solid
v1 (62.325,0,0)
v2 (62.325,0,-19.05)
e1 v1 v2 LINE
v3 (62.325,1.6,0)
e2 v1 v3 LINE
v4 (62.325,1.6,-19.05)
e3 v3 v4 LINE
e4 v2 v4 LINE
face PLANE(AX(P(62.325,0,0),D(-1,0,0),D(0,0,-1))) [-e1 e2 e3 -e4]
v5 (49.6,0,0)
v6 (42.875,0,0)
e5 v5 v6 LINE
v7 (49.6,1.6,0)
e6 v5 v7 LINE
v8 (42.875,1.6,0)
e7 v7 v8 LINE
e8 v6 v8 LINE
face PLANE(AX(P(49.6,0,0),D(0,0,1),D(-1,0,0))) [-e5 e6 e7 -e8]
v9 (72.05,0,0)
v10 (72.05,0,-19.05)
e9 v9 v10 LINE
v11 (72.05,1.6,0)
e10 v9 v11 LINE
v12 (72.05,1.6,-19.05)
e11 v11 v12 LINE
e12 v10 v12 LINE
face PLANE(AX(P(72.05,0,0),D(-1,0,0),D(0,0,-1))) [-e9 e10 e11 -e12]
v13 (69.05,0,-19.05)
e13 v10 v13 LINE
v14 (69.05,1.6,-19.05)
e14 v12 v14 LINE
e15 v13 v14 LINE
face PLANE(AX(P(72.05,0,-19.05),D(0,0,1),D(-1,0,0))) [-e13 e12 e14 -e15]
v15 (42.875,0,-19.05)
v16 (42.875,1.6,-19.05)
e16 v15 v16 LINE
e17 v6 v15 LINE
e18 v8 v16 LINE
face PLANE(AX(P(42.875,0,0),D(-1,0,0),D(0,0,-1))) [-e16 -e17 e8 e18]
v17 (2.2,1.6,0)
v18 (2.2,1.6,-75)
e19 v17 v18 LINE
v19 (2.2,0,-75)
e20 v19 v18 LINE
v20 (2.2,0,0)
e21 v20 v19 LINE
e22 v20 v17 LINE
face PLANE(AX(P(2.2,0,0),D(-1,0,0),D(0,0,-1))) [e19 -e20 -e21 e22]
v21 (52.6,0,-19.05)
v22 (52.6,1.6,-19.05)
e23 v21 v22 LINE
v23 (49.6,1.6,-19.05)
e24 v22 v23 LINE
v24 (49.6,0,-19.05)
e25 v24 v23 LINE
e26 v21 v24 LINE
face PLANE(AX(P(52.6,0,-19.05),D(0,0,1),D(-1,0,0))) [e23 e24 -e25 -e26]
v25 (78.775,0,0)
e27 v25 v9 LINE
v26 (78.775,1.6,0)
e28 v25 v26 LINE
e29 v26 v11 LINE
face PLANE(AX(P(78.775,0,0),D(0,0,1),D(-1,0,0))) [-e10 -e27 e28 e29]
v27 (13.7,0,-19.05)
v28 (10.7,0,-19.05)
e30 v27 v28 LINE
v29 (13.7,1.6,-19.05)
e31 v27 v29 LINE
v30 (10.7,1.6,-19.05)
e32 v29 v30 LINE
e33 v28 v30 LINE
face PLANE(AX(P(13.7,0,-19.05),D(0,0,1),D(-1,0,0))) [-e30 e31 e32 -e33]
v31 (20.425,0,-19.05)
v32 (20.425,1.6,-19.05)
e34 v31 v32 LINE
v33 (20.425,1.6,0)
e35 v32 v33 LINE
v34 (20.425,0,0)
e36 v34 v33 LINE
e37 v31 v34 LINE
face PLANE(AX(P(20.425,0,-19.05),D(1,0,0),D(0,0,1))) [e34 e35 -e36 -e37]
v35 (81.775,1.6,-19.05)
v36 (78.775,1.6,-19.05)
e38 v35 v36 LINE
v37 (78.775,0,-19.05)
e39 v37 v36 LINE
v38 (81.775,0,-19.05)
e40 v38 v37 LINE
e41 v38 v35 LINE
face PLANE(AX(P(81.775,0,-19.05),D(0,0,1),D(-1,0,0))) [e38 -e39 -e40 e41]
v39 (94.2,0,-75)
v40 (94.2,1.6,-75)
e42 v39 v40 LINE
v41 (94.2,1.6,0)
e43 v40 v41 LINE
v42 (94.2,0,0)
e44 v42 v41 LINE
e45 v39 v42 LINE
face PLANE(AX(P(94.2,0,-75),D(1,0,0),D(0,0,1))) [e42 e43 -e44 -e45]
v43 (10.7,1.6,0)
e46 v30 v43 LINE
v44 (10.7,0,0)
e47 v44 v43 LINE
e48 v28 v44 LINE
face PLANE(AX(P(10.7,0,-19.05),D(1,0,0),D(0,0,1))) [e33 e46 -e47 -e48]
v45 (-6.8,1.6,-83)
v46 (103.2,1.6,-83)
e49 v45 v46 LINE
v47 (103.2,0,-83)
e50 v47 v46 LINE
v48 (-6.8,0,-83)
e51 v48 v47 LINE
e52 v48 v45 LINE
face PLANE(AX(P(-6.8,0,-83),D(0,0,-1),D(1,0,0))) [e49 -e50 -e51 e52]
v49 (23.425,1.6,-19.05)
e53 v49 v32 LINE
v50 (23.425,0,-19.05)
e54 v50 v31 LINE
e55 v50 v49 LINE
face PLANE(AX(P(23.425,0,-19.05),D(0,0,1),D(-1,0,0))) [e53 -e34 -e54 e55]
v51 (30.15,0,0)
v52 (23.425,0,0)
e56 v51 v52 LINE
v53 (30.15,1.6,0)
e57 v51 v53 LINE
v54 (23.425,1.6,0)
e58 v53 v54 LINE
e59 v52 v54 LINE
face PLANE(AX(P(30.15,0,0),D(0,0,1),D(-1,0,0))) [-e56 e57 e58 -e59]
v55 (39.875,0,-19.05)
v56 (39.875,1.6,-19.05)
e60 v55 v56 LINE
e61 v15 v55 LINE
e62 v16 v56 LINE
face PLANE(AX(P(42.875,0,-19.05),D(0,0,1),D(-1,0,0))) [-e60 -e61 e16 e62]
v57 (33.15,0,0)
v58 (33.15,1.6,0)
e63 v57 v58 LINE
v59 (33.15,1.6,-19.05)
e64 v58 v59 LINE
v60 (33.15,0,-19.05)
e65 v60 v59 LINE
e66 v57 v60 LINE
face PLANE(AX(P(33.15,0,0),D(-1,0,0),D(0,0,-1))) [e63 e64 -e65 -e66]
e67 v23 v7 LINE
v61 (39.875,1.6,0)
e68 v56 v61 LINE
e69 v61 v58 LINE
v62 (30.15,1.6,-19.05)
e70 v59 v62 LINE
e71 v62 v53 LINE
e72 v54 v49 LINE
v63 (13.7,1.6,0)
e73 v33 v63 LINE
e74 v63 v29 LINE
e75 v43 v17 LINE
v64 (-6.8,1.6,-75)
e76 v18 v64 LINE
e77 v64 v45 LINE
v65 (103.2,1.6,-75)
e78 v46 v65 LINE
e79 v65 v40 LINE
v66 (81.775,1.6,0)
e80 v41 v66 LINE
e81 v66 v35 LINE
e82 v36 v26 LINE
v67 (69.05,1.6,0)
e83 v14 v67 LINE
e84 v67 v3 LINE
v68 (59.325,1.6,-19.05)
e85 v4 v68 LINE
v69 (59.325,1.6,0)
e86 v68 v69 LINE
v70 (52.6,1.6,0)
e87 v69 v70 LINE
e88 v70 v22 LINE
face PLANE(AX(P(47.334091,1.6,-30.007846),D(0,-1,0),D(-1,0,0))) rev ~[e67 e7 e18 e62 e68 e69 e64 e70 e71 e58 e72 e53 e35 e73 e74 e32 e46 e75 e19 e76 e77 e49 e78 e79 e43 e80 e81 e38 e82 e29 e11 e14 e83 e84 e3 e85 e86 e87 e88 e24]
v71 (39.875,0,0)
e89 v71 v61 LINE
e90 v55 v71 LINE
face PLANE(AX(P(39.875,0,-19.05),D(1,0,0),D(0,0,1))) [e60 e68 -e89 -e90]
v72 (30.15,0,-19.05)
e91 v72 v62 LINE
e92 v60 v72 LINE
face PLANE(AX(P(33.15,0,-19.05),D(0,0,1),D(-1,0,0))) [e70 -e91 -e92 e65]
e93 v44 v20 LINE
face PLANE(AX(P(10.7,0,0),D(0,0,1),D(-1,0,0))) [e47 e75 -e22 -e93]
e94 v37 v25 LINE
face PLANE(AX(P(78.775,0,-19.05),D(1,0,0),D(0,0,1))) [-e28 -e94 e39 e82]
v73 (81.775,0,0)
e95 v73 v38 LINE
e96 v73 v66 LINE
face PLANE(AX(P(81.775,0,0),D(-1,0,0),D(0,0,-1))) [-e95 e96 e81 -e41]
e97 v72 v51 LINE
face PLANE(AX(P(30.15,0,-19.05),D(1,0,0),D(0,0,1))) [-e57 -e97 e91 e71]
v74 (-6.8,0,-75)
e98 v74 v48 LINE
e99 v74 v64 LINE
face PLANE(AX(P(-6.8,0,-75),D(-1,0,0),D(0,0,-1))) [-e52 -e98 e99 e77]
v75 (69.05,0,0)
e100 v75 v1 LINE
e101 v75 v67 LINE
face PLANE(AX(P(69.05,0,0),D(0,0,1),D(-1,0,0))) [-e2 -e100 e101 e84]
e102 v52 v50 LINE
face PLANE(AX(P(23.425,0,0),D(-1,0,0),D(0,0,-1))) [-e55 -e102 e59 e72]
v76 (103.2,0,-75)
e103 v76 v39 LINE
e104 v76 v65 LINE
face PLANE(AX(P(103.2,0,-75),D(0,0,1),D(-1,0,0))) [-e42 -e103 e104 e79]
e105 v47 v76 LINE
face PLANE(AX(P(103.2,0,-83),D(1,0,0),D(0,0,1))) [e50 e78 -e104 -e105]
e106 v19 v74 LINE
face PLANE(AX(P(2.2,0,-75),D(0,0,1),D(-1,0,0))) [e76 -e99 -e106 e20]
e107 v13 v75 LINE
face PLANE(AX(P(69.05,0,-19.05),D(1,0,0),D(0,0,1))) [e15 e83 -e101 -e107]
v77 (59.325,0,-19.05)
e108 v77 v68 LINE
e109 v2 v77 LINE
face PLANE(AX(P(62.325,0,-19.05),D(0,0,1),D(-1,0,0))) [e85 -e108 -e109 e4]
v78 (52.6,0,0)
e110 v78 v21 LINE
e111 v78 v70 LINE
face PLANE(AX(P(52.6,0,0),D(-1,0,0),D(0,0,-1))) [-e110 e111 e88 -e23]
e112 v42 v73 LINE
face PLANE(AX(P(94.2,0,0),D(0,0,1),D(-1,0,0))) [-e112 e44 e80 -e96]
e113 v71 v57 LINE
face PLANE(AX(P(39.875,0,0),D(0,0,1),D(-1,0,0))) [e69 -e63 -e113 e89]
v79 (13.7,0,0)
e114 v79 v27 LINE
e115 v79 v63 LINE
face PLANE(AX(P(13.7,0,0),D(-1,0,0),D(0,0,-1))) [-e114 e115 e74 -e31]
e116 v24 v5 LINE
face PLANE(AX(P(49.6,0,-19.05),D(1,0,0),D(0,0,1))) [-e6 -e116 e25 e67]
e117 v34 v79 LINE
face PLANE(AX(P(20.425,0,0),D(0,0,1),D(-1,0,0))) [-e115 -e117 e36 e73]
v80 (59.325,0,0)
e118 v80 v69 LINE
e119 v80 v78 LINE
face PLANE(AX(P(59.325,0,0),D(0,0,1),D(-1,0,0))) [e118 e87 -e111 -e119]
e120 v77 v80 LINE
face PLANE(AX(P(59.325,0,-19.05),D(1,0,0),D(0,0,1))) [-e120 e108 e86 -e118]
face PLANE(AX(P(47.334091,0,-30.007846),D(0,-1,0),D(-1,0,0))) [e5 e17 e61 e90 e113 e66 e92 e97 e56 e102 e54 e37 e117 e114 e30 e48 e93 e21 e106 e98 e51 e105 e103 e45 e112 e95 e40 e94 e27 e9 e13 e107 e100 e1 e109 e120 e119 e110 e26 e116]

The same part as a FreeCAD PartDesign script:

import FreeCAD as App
import Part
import Sketcher

V = App.Vector
Q = App.Units.Quantity

doc = App.newDocument("Part")
body = doc.addObject("PartDesign::Body", "Body")

sketch1 = body.newObject("Sketcher::SketchObject", "Sketch")
sketch1.AttachmentSupport = (doc.getObject("XZ_Plane"), [""])
sketch1.MapMode = "FlatFace"
sketch1.addGeometry(Part.LineSegment(V(-6.8, -75, 0), V(2.2, -75, 0)), False)
sketch1.addGeometry(Part.LineSegment(V(2.2, -75, 0), V(2.2, 0, 0)), False)
sketch1.addGeometry(Part.LineSegment(V(2.2, 0, 0), V(10.7, 0, 0)), False)
sketch1.addGeometry(Part.LineSegment(V(10.7, 0, 0), V(10.7, -19.1, 0)), False)
sketch1.addGeometry(Part.LineSegment(V(10.7, -19.1, 0), V(13.7, -19.1, 0)), False)
sketch1.addGeometry(Part.LineSegment(V(13.7, -19.1, 0), V(13.7, 0, 0)), False)
sketch1.addGeometry(Part.LineSegment(V(13.7, 0, 0), V(20.4, 0, 0)), False)
sketch1.addGeometry(Part.LineSegment(V(20.4, 0, 0), V(20.4, -19.1, 0)), False)
sketch1.addGeometry(Part.LineSegment(V(20.4, -19.1, 0), V(23.4, -19.1, 0)), False)
sketch1.addGeometry(Part.LineSegment(V(23.4, -19.1, 0), V(23.4, 0, 0)), False)
sketch1.addGeometry(Part.LineSegment(V(23.4, 0, 0), V(30.1, 0, 0)), False)
sketch1.addGeometry(Part.LineSegment(V(30.1, 0, 0), V(30.1, -19.1, 0)), False)
sketch1.addGeometry(Part.LineSegment(V(30.1, -19.1, 0), V(33.1, -19.1, 0)), False)
sketch1.addGeometry(Part.LineSegment(V(33.1, -19.1, 0), V(33.1, 0, 0)), False)
sketch1.addGeometry(Part.LineSegment(V(33.1, 0, 0), V(39.9, 0, 0)), False)
sketch1.addGeometry(Part.LineSegment(V(39.9, 0, 0), V(39.9, -19.1, 0)), False)
sketch1.addGeometry(Part.LineSegment(V(39.9, -19.1, 0), V(42.9, -19.1, 0)), False)
sketch1.addGeometry(Part.LineSegment(V(42.9, -19.1, 0), V(42.9, 0, 0)), False)
sketch1.addGeometry(Part.LineSegment(V(42.9, 0, 0), V(49.6, 0, 0)), False)
sketch1.addGeometry(Part.LineSegment(V(49.6, 0, 0), V(49.6, -19.1, 0)), False)
sketch1.addGeometry(Part.LineSegment(V(49.6, -19.1, 0), V(52.6, -19.1, 0)), False)
sketch1.addGeometry(Part.LineSegment(V(52.6, -19.1, 0), V(52.6, 0, 0)), False)
sketch1.addGeometry(Part.LineSegment(V(52.6, 0, 0), V(59.3, 0, 0)), False)
sketch1.addGeometry(Part.LineSegment(V(59.3, 0, 0), V(59.3, -19.1, 0)), False)
sketch1.addGeometry(Part.LineSegment(V(59.3, -19.1, 0), V(62.3, -19.1, 0)), False)
sketch1.addGeometry(Part.LineSegment(V(62.3, -19.1, 0), V(62.3, 0, 0)), False)
sketch1.addGeometry(Part.LineSegment(V(62.3, 0, 0), V(69, 0, 0)), False)
sketch1.addGeometry(Part.LineSegment(V(69, 0, 0), V(69, -19.1, 0)), False)
sketch1.addGeometry(Part.LineSegment(V(69, -19.1, 0), V(72, -19.1, 0)), False)
sketch1.addGeometry(Part.LineSegment(V(72, -19.1, 0), V(72, 0, 0)), False)
sketch1.addGeometry(Part.LineSegment(V(72, 0, 0), V(78.8, 0, 0)), False)
sketch1.addGeometry(Part.LineSegment(V(78.8, 0, 0), V(78.8, -19.1, 0)), False)
sketch1.addGeometry(Part.LineSegment(V(78.8, -19.1, 0), V(81.8, -19.1, 0)), False)
sketch1.addGeometry(Part.LineSegment(V(81.8, -19.1, 0), V(81.8, 0, 0)), False)
sketch1.addGeometry(Part.LineSegment(V(81.8, 0, 0), V(94.2, 0, 0)), False)
sketch1.addGeometry(Part.LineSegment(V(94.2, 0, 0), V(94.2, -75, 0)), False)
sketch1.addGeometry(Part.LineSegment(V(94.2, -75, 0), V(103.2, -75, 0)), False)
sketch1.addGeometry(Part.LineSegment(V(103.2, -75, 0), V(103.2, -83, 0)), False)
sketch1.addGeometry(Part.LineSegment(V(103.2, -83, 0), V(-6.8, -83, 0)), False)
sketch1.addGeometry(Part.LineSegment(V(-6.8, -83, 0), V(-6.8, -75, 0)), False)
sketch1.addConstraint(Sketcher.Constraint("Coincident", 0, 2, 1, 1))
sketch1.addConstraint(Sketcher.Constraint("Coincident", 1, 2, 2, 1))
sketch1.addConstraint(Sketcher.Constraint("Coincident", 2, 2, 3, 1))
sketch1.addConstraint(Sketcher.Constraint("Coincident", 3, 2, 4, 1))
sketch1.addConstraint(Sketcher.Constraint("Coincident", 4, 2, 5, 1))
sketch1.addConstraint(Sketcher.Constraint("Coincident", 5, 2, 6, 1))
sketch1.addConstraint(Sketcher.Constraint("Coincident", 6, 2, 7, 1))
sketch1.addConstraint(Sketcher.Constraint("Coincident", 7, 2, 8, 1))
sketch1.addConstraint(Sketcher.Constraint("Coincident", 8, 2, 9, 1))
sketch1.addConstraint(Sketcher.Constraint("Coincident", 9, 2, 10, 1))
sketch1.addConstraint(Sketcher.Constraint("Coincident", 10, 2, 11, 1))
sketch1.addConstraint(Sketcher.Constraint("Coincident", 11, 2, 12, 1))
sketch1.addConstraint(Sketcher.Constraint("Coincident", 12, 2, 13, 1))
sketch1.addConstraint(Sketcher.Constraint("Coincident", 13, 2, 14, 1))
sketch1.addConstraint(Sketcher.Constraint("Coincident", 14, 2, 15, 1))
sketch1.addConstraint(Sketcher.Constraint("Coincident", 15, 2, 16, 1))
sketch1.addConstraint(Sketcher.Constraint("Coincident", 16, 2, 17, 1))
sketch1.addConstraint(Sketcher.Constraint("Coincident", 17, 2, 18, 1))
sketch1.addConstraint(Sketcher.Constraint("Coincident", 18, 2, 19, 1))
sketch1.addConstraint(Sketcher.Constraint("Coincident", 19, 2, 20, 1))
sketch1.addConstraint(Sketcher.Constraint("Coincident", 20, 2, 21, 1))
sketch1.addConstraint(Sketcher.Constraint("Coincident", 21, 2, 22, 1))
sketch1.addConstraint(Sketcher.Constraint("Coincident", 22, 2, 23, 1))
sketch1.addConstraint(Sketcher.Constraint("Coincident", 23, 2, 24, 1))
sketch1.addConstraint(Sketcher.Constraint("Coincident", 24, 2, 25, 1))
sketch1.addConstraint(Sketcher.Constraint("Coincident", 25, 2, 26, 1))
sketch1.addConstraint(Sketcher.Constraint("Coincident", 26, 2, 27, 1))
sketch1.addConstraint(Sketcher.Constraint("Coincident", 27, 2, 28, 1))
sketch1.addConstraint(Sketcher.Constraint("Coincident", 28, 2, 29, 1))
sketch1.addConstraint(Sketcher.Constraint("Coincident", 29, 2, 30, 1))
sketch1.addConstraint(Sketcher.Constraint("Coincident", 30, 2, 31, 1))
sketch1.addConstraint(Sketcher.Constraint("Coincident", 31, 2, 32, 1))
sketch1.addConstraint(Sketcher.Constraint("Coincident", 32, 2, 33, 1))
sketch1.addConstraint(Sketcher.Constraint("Coincident", 33, 2, 34, 1))
sketch1.addConstraint(Sketcher.Constraint("Coincident", 34, 2, 35, 1))
sketch1.addConstraint(Sketcher.Constraint("Coincident", 35, 2, 36, 1))
sketch1.addConstraint(Sketcher.Constraint("Coincident", 36, 2, 37, 1))
sketch1.addConstraint(Sketcher.Constraint("Coincident", 37, 2, 38, 1))
sketch1.addConstraint(Sketcher.Constraint("Coincident", 38, 2, 39, 1))
sketch1.addConstraint(Sketcher.Constraint("Coincident", 39, 2, 0, 1))
sketch1.addConstraint(Sketcher.Constraint("Horizontal", 0))
sketch1.addConstraint(Sketcher.Constraint("Vertical", 1))
sketch1.addConstraint(Sketcher.Constraint("Horizontal", 2))
sketch1.addConstraint(Sketcher.Constraint("Vertical", 3))
sketch1.addConstraint(Sketcher.Constraint("Horizontal", 4))
sketch1.addConstraint(Sketcher.Constraint("Vertical", 5))
sketch1.addConstraint(Sketcher.Constraint("Horizontal", 6))
sketch1.addConstraint(Sketcher.Constraint("Vertical", 7))
sketch1.addConstraint(Sketcher.Constraint("Horizontal", 8))
sketch1.addConstraint(Sketcher.Constraint("Vertical", 9))
sketch1.addConstraint(Sketcher.Constraint("Horizontal", 10))
sketch1.addConstraint(Sketcher.Constraint("Vertical", 11))
sketch1.addConstraint(Sketcher.Constraint("Horizontal", 12))
sketch1.addConstraint(Sketcher.Constraint("Vertical", 13))
sketch1.addConstraint(Sketcher.Constraint("Horizontal", 14))
sketch1.addConstraint(Sketcher.Constraint("Vertical", 15))
sketch1.addConstraint(Sketcher.Constraint("Horizontal", 16))
sketch1.addConstraint(Sketcher.Constraint("Vertical", 17))
sketch1.addConstraint(Sketcher.Constraint("Horizontal", 18))
sketch1.addConstraint(Sketcher.Constraint("Vertical", 19))
sketch1.addConstraint(Sketcher.Constraint("Horizontal", 20))
sketch1.addConstraint(Sketcher.Constraint("Vertical", 21))
sketch1.addConstraint(Sketcher.Constraint("Horizontal", 22))
sketch1.addConstraint(Sketcher.Constraint("Vertical", 23))
sketch1.addConstraint(Sketcher.Constraint("Horizontal", 24))
sketch1.addConstraint(Sketcher.Constraint("Vertical", 25))
sketch1.addConstraint(Sketcher.Constraint("Horizontal", 26))
sketch1.addConstraint(Sketcher.Constraint("Vertical", 27))
sketch1.addConstraint(Sketcher.Constraint("Horizontal", 28))
sketch1.addConstraint(Sketcher.Constraint("Vertical", 29))
sketch1.addConstraint(Sketcher.Constraint("Horizontal", 30))
sketch1.addConstraint(Sketcher.Constraint("Vertical", 31))
sketch1.addConstraint(Sketcher.Constraint("Horizontal", 32))
sketch1.addConstraint(Sketcher.Constraint("Vertical", 33))
sketch1.addConstraint(Sketcher.Constraint("Horizontal", 34))
sketch1.addConstraint(Sketcher.Constraint("Vertical", 35))
sketch1.addConstraint(Sketcher.Constraint("Horizontal", 36))
sketch1.addConstraint(Sketcher.Constraint("Vertical", 37))
sketch1.addConstraint(Sketcher.Constraint("Horizontal", 38))
sketch1.addConstraint(Sketcher.Constraint("Vertical", 39))
sketch1.addConstraint(Sketcher.Constraint("PointOnObject", 1, 2, -1))
sketch1.addConstraint(Sketcher.Constraint("PointOnObject", 5, 2, -1))
sketch1.addConstraint(Sketcher.Constraint("PointOnObject", 9, 2, -1))
sketch1.addConstraint(Sketcher.Constraint("PointOnObject", 13, 2, -1))
sketch1.addConstraint(Sketcher.Constraint("PointOnObject", 17, 2, -1))
sketch1.addConstraint(Sketcher.Constraint("PointOnObject", 21, 2, -1))
sketch1.addConstraint(Sketcher.Constraint("PointOnObject", 25, 2, -1))
sketch1.addConstraint(Sketcher.Constraint("PointOnObject", 29, 2, -1))
sketch1.addConstraint(Sketcher.Constraint("PointOnObject", 33, 2, -1))
sketch1.addConstraint(Sketcher.Constraint("Horizontal", 4, 2, 7, 2))
sketch1.addConstraint(Sketcher.Constraint("Horizontal", 8, 2, 11, 2))
sketch1.addConstraint(Sketcher.Constraint("Horizontal", 12, 2, 15, 2))
sketch1.addConstraint(Sketcher.Constraint("Horizontal", 16, 2, 19, 2))
sketch1.addConstraint(Sketcher.Constraint("Horizontal", 20, 2, 23, 2))
sketch1.addConstraint(Sketcher.Constraint("Horizontal", 24, 2, 27, 2))
sketch1.addConstraint(Sketcher.Constraint("Horizontal", 28, 2, 31, 2))
sketch1.addConstraint(Sketcher.Constraint("Horizontal", 0, 2, 35, 2))
sketch1.addConstraint(Sketcher.Constraint("Equal", 4, 8))
sketch1.addConstraint(Sketcher.Constraint("Equal", 6, 10))
sketch1.addConstraint(Sketcher.Constraint("Equal", 8, 12))
sketch1.addConstraint(Sketcher.Constraint("Equal", 10, 14))
sketch1.addConstraint(Sketcher.Constraint("Equal", 12, 16))
sketch1.addConstraint(Sketcher.Constraint("Equal", 14, 18))
sketch1.addConstraint(Sketcher.Constraint("Equal", 16, 20))
sketch1.addConstraint(Sketcher.Constraint("Equal", 18, 22))
sketch1.addConstraint(Sketcher.Constraint("Equal", 20, 24))
sketch1.addConstraint(Sketcher.Constraint("Equal", 22, 26))
sketch1.addConstraint(Sketcher.Constraint("Equal", 24, 28))
sketch1.addConstraint(Sketcher.Constraint("Equal", 26, 30))
sketch1.addConstraint(Sketcher.Constraint("Equal", 28, 32))
sketch1.addConstraint(Sketcher.Constraint("Equal", 0, 36))
sketch1.addConstraint(Sketcher.Constraint("DistanceX", 0, 1, 0, 2, Q("9 mm")))
sketch1.addConstraint(Sketcher.Constraint("DistanceX", 4, 1, 4, 2, Q("3 mm")))
sketch1.addConstraint(Sketcher.Constraint("DistanceX", 38, 2, 38, 1, Q("110 mm")))
sketch1.addConstraint(Sketcher.Constraint("DistanceY", 1, 1, 1, 2, Q("75 mm")))
sketch1.addConstraint(Sketcher.Constraint("DistanceY", 37, 2, 37, 1, Q("8 mm")))
sketch1.addConstraint(Sketcher.Constraint("DistanceX", 2, 1, 2, 2, Q("8.5 mm")))
sketch1.addConstraint(Sketcher.Constraint("DistanceY", 3, 2, 3, 1, Q("19.05 mm")))
sketch1.addConstraint(Sketcher.Constraint("DistanceX", -1, 1, 0, 2, Q("2.2 mm")))
sketch1.addConstraint(Sketcher.Constraint("DistanceX", -1, 1, 18, 2, Q("49.6 mm")))
pad1 = body.newObject("PartDesign::Pad", "Pad")
pad1.Profile = sketch1
pad1.Length = 1.6
pad1.Reversed = True

doc.recompute()
